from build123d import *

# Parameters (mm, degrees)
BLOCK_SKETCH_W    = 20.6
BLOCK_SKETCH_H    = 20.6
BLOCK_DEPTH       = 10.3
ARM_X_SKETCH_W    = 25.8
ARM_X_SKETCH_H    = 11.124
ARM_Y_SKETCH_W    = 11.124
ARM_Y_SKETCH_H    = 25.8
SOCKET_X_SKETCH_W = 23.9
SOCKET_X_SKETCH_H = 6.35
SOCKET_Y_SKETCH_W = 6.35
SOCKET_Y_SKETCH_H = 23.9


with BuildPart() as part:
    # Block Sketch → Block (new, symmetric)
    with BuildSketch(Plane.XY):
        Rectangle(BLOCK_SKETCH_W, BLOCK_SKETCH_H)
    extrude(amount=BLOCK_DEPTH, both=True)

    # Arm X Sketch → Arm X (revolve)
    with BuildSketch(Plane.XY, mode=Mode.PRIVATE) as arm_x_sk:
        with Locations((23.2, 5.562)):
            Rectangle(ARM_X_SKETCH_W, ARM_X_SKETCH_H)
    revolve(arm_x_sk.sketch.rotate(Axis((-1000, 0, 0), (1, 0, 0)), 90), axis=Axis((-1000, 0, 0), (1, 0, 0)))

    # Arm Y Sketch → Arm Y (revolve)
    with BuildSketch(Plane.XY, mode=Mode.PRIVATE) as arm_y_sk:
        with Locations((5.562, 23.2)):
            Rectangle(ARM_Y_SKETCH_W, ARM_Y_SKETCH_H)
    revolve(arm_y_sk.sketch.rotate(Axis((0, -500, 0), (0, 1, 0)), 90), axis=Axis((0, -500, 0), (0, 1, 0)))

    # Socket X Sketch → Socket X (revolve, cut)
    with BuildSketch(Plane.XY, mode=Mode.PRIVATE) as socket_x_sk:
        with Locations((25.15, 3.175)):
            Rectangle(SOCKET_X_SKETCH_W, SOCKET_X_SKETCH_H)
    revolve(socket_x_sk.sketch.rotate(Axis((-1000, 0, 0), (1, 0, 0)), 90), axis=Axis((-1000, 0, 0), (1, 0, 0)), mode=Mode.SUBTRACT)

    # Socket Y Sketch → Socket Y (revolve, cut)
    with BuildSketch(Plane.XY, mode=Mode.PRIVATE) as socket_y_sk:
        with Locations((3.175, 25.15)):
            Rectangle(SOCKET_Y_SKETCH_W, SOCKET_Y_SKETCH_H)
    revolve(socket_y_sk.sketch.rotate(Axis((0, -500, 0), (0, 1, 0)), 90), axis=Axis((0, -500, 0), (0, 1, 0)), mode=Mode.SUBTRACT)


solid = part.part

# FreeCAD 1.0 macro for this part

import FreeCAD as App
import Part
import Sketcher
Q = App.Units.Quantity


def add_polygon(sketch, points):
    """Adds a closed chain of lines whose ends are joined by coincident constraints."""
    first, n = sketch.GeometryCount, len(points)
    for a, b in zip(points, points[1:] + points[:1]):
        sketch.addGeometry(Part.LineSegment(App.Vector(*a, 0), App.Vector(*b, 0)), False)
    for i in range(n):
        sketch.addConstraint(Sketcher.Constraint("Coincident", first + i, 2, first + (i + 1) % n, 1))

doc = App.newDocument("Part")
body = doc.addObject("PartDesign::Body", "Body")

sketch1 = body.newObject("Sketcher::SketchObject", "Sketch")
sketch1.AttachmentSupport = (doc.getObject("XY_Plane"), [""])
sketch1.MapMode = "FlatFace"
add_polygon(sketch1, [(-10, 10), (-10, -10), (10, -10), (10, 10)])
sketch1.addConstraint([
    Sketcher.Constraint("Vertical", 0),
    Sketcher.Constraint("Horizontal", 1),
    Sketcher.Constraint("Vertical", 2),
    Sketcher.Constraint("Horizontal", 3),
    Sketcher.Constraint("Symmetric", 0, 2, 2, 2, -1, 1),
    Sketcher.Constraint("Equal", 3, 0),
    Sketcher.Constraint("DistanceX", 1, 1, 1, 2, Q("20.6 mm")),
])
pad1 = body.newObject("PartDesign::Pad", "Pad")
pad1.Profile = sketch1
pad1.Length = 20.6
pad1.Midplane = True

sketch2 = body.newObject("Sketcher::SketchObject", "Sketch001")
sketch2.AttachmentSupport = (doc.getObject("XY_Plane"), [""])
sketch2.MapMode = "FlatFace"
add_polygon(sketch2, [(10, 11), (10, 0), (36, 0), (36, 11)])
sketch2.addConstraint([
    Sketcher.Constraint("Vertical", 0),
    Sketcher.Constraint("Horizontal", 1),
    Sketcher.Constraint("Vertical", 2),
    Sketcher.Constraint("Horizontal", 3),
    Sketcher.Constraint("PointOnObject", 0, 2, -1),
    Sketcher.Constraint("DistanceX", 1, 1, 1, 2, Q("25.8 mm")),
    Sketcher.Constraint("DistanceX", -1, 1, 0, 2, Q("10.3 mm")),
    Sketcher.Constraint("DistanceY", 0, 2, 0, 1, Q("11.124 mm")),
])
revolution = body.newObject("PartDesign::Revolution", "Revolution")
revolution.Profile = sketch2
revolution.ReferenceAxis = (sketch2, ["H_Axis"])
revolution.Angle = 360

sketch3 = body.newObject("Sketcher::SketchObject", "Sketch002")
sketch3.AttachmentSupport = (doc.getObject("XY_Plane"), [""])
sketch3.MapMode = "FlatFace"
add_polygon(sketch3, [(0, 36), (0, 10), (11, 10), (11, 36)])
sketch3.addConstraint([
    Sketcher.Constraint("Vertical", 0),
    Sketcher.Constraint("Horizontal", 1),
    Sketcher.Constraint("Vertical", 2),
    Sketcher.Constraint("Horizontal", 3),
    Sketcher.Constraint("PointOnObject", 0, 2, -2),
    Sketcher.Constraint("DistanceY", 0, 2, 0, 1, Q("25.8 mm")),
    Sketcher.Constraint("DistanceY", -1, 1, 0, 2, Q("10.3 mm")),
    Sketcher.Constraint("DistanceX", 1, 1, 1, 2, Q("11.124 mm")),
])
revolution2 = body.newObject("PartDesign::Revolution", "Revolution001")
revolution2.Profile = sketch3
revolution2.ReferenceAxis = (sketch3, ["V_Axis"])
revolution2.Angle = 360

sketch4 = body.newObject("Sketcher::SketchObject", "Sketch003")
sketch4.AttachmentSupport = (doc.getObject("XY_Plane"), [""])
sketch4.MapMode = "FlatFace"
add_polygon(sketch4, [(13, 6), (13, 0), (37, 0), (37, 6)])
sketch4.addConstraint([
    Sketcher.Constraint("Vertical", 0),
    Sketcher.Constraint("Horizontal", 1),
    Sketcher.Constraint("Vertical", 2),
    Sketcher.Constraint("Horizontal", 3),
    Sketcher.Constraint("PointOnObject", 0, 2, -1),
    Sketcher.Constraint("DistanceX", 1, 1, 1, 2, Q("23.9 mm")),
    Sketcher.Constraint("DistanceY", 0, 2, 0, 1, Q("6.35 mm")),
    Sketcher.Constraint("DistanceX", -1, 1, 0, 2, Q("13.2 mm")),
])
groove = body.newObject("PartDesign::Groove", "Groove")
groove.Profile = sketch4
groove.ReferenceAxis = (sketch4, ["H_Axis"])
groove.Angle = 360

sketch5 = body.newObject("Sketcher::SketchObject", "Sketch004")
sketch5.AttachmentSupport = (doc.getObject("XY_Plane"), [""])
sketch5.MapMode = "FlatFace"
add_polygon(sketch5, [(0, 37), (0, 13), (6, 13), (6, 37)])
sketch5.addConstraint([
    Sketcher.Constraint("Vertical", 0),
    Sketcher.Constraint("Horizontal", 1),
    Sketcher.Constraint("Vertical", 2),
    Sketcher.Constraint("Horizontal", 3),
    Sketcher.Constraint("PointOnObject", 0, 2, -2),
    Sketcher.Constraint("DistanceY", 0, 2, 0, 1, Q("23.9 mm")),
    Sketcher.Constraint("DistanceX", 1, 1, 1, 2, Q("6.35 mm")),
    Sketcher.Constraint("DistanceY", -1, 1, 0, 2, Q("13.2 mm")),
])
groove2 = body.newObject("PartDesign::Groove", "Groove001")
groove2.Profile = sketch5
groove2.ReferenceAxis = (sketch5, ["V_Axis"])
groove2.Angle = 360

doc.recompute()
